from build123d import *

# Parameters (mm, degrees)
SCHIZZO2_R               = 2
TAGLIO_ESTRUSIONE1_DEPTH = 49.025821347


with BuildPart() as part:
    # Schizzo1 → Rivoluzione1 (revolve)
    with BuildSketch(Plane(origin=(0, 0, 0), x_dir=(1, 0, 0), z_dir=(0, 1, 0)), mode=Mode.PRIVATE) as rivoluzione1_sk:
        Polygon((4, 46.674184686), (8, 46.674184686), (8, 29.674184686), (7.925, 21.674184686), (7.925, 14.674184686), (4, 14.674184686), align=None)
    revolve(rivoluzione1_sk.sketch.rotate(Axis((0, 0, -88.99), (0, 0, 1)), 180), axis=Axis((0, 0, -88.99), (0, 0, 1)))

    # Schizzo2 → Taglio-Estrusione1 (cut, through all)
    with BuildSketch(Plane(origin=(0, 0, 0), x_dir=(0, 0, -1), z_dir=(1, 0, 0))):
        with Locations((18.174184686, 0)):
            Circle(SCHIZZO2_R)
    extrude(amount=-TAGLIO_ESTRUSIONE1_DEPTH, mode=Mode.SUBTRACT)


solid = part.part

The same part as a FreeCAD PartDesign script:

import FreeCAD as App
import Part
import Sketcher

V = App.Vector

doc = App.newDocument("Part")
body = doc.addObject("PartDesign::Body", "Body")

# Sketch on XZ plane
sketch1 = body.newObject("Sketcher::SketchObject", "Sketch")
sketch1.AttachmentSupport = (doc.getObject("XZ_Plane"), [""])
sketch1.MapMode = "FlatFace"
sketch1.addGeometry([
    Part.LineSegment(V(8, -46.7, 0), V(4, -46.7, 0)),  # 0
    Part.LineSegment(V(4, -46.7, 0), V(4, -14.7, 0)),  # 1
    Part.LineSegment(V(4, -14.7, 0), V(7.9, -14.7, 0)),  # 2
    Part.LineSegment(V(7.9, -14.7, 0), V(7.9, -21.7, 0)),  # 3
    Part.LineSegment(V(7.9, -21.7, 0), V(8, -29.7, 0)),  # 4
    Part.LineSegment(V(8, -29.7, 0), V(8, -46.7, 0)),  # 5
], False)
sketch1.addConstraint([
    Sketcher.Constraint("Coincident", 0, 2, 1, 1),
    Sketcher.Constraint("Coincident", 1, 2, 2, 1),
    Sketcher.Constraint("Coincident", 2, 2, 3, 1),
    Sketcher.Constraint("Coincident", 3, 2, 4, 1),
    Sketcher.Constraint("Coincident", 4, 2, 5, 1),
    Sketcher.Constraint("Coincident", 5, 2, 0, 1),
    Sketcher.Constraint("Horizontal", 0),
    Sketcher.Constraint("Vertical", 1),
    Sketcher.Constraint("Horizontal", 2),
    Sketcher.Constraint("Vertical", 3),
    Sketcher.Constraint("Vertical", 5),
    Sketcher.Constraint("DistanceX", 0, 2, 0, 1, 4.0),
    Sketcher.Constraint("DistanceY", 1, 1, 1, 2, 32.0),
    Sketcher.Constraint("DistanceY", 3, 2, 3, 1, 7.0),
    Sketcher.Constraint("DistanceY", 5, 2, 5, 1, 17.0),
    Sketcher.Constraint("DistanceX", -1, 1, 0, 2, 4.0),
    Sketcher.Constraint("DistanceX", 2, 1, 2, 2, 3.925),
    Sketcher.Constraint("DistanceY", 0, 2, -1, 1, 46.674185),
])
revolution = body.newObject("PartDesign::Revolution", "Revolution")
revolution.Profile = sketch1
revolution.ReferenceAxis = (sketch1, ["V_Axis"])
revolution.Angle = 360

# Sketch on YZ plane
sketch2 = body.newObject("Sketcher::SketchObject", "Sketch001")
sketch2.AttachmentSupport = (doc.getObject("YZ_Plane"), [""])
sketch2.MapMode = "FlatFace"
sketch2.addGeometry(Part.Circle(V(0, -18.2, 0), V(0, 0, 1), 2), False)
sketch2.addConstraint([
    Sketcher.Constraint("PointOnObject", 0, 3, -2),
    Sketcher.Constraint("Diameter", 0, 4.0),
    Sketcher.Constraint("DistanceY", 0, 3, -1, 1, 18.174185),
])
pocket1 = body.newObject("PartDesign::Pocket", "Pocket")
pocket1.Profile = sketch2
pocket1.Type = "ThroughAll"

doc.recompute()
